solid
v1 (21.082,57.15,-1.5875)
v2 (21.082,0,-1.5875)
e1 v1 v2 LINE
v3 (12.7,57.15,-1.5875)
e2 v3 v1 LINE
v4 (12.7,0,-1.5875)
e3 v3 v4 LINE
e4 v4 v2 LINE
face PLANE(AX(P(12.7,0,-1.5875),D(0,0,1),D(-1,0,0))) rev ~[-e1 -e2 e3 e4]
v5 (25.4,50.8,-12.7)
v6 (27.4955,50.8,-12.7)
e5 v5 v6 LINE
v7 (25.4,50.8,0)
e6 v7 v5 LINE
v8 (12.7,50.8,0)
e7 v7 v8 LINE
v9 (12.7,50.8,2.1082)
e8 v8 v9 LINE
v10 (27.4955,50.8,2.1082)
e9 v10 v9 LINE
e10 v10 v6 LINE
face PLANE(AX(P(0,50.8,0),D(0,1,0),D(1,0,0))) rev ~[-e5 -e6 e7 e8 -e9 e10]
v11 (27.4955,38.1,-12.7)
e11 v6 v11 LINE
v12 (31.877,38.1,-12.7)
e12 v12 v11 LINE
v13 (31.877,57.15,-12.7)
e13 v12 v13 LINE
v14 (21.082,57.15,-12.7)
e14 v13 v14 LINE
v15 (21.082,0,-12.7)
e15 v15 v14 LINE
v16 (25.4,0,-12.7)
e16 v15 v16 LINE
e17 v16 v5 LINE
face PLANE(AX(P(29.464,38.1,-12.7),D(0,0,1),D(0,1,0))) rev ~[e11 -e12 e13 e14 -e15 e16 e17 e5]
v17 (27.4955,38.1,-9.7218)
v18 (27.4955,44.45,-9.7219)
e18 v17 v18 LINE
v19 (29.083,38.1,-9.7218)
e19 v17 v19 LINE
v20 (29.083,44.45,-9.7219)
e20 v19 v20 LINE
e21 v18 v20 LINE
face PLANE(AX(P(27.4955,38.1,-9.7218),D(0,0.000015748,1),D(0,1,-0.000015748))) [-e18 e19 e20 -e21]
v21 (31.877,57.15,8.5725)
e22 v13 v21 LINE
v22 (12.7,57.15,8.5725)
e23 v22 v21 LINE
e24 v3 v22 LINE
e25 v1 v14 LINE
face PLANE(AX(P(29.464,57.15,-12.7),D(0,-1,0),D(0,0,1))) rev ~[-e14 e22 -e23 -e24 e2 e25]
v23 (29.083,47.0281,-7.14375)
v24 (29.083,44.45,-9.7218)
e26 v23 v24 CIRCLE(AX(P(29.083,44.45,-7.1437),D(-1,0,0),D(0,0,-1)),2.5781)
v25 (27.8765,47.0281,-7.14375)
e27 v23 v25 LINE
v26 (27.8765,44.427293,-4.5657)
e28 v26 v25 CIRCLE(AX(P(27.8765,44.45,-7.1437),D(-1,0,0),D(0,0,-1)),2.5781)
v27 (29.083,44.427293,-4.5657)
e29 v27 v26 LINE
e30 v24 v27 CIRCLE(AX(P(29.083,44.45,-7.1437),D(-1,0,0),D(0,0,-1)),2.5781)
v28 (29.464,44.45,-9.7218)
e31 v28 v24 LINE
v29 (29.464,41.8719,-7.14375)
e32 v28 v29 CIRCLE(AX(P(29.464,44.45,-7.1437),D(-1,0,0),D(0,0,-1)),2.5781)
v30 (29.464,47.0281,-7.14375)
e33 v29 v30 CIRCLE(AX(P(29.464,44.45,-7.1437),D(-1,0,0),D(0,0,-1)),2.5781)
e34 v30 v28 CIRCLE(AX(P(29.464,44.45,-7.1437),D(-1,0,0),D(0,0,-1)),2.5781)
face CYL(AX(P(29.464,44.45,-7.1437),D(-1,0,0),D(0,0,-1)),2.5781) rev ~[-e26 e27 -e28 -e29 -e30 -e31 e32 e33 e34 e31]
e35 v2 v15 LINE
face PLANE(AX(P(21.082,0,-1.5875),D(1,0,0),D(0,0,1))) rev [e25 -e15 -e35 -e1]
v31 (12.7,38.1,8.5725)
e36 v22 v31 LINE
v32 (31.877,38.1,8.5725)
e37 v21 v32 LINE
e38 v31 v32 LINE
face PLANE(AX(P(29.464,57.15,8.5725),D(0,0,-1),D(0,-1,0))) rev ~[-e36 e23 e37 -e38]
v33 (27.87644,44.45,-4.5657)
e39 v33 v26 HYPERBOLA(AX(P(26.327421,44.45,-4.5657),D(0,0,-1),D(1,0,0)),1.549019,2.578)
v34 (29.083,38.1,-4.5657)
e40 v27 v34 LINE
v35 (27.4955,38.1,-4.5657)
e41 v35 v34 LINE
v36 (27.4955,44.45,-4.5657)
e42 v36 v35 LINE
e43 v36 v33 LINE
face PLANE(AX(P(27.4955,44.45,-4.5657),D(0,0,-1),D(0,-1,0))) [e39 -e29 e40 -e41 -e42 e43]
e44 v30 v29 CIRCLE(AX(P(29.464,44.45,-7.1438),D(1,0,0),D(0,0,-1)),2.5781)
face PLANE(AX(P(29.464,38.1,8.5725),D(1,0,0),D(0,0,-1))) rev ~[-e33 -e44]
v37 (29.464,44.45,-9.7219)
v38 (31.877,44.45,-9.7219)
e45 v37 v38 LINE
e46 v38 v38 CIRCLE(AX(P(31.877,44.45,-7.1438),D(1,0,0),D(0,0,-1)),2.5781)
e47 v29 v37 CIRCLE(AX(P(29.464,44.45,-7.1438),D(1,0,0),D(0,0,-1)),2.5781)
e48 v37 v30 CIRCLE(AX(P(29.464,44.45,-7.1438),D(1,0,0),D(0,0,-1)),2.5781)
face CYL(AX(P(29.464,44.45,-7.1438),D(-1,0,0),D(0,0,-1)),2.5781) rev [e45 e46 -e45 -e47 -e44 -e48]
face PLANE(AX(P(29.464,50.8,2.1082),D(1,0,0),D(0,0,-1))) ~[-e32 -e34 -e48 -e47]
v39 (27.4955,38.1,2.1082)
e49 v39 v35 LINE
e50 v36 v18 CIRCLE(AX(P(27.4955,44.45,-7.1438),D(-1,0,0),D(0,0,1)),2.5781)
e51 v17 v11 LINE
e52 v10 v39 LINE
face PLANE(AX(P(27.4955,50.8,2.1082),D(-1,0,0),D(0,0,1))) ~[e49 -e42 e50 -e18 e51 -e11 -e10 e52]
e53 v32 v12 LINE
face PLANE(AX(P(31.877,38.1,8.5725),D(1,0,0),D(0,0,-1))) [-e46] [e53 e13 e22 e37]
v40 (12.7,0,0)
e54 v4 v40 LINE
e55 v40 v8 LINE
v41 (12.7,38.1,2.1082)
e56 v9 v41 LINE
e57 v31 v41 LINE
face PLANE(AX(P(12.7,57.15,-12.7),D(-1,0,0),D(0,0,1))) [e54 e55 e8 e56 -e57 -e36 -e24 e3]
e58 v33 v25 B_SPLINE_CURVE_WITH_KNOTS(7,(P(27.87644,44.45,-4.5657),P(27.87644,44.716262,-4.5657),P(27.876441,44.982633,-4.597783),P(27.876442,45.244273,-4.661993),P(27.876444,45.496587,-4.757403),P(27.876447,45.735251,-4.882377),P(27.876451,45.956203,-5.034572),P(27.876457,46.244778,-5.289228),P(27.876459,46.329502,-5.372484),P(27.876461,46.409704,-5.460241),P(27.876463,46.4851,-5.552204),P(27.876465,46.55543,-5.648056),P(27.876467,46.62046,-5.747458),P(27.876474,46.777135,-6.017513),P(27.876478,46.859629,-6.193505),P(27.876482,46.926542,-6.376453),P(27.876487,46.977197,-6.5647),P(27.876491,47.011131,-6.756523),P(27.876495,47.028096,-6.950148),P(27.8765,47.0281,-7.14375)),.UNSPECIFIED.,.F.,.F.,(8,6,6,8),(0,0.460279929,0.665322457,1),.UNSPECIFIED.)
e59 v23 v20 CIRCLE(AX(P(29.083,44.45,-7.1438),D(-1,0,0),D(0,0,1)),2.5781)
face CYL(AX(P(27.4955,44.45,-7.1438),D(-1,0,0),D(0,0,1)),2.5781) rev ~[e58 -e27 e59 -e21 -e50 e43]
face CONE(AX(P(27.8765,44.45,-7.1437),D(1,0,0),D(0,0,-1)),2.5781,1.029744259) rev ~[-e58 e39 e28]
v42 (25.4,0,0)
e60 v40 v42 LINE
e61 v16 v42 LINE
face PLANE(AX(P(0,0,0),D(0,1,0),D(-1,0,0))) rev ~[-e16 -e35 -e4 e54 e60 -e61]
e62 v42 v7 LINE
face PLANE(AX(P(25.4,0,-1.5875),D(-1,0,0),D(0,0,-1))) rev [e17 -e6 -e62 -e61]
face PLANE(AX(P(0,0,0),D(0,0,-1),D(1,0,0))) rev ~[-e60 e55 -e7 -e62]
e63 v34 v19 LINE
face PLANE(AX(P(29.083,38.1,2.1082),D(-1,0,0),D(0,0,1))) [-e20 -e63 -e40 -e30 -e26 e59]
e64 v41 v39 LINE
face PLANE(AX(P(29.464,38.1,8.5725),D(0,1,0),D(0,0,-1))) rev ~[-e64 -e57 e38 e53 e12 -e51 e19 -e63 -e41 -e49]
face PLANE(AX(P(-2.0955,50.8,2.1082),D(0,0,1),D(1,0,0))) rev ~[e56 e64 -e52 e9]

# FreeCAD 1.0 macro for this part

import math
import FreeCAD as App
import Part
import Sketcher
from FreeCAD import Vector
Q = App.Units.Quantity


def add_polygon(sketch, points):
    """Adds a closed chain of lines whose ends are joined by coincident constraints."""
    first, n = sketch.GeometryCount, len(points)
    for a, b in zip(points, points[1:] + points[:1]):
        sketch.addGeometry(Part.LineSegment(App.Vector(*a, 0), App.Vector(*b, 0)), False)
    for i in range(n):
        sketch.addConstraint(Sketcher.Constraint("Coincident", first + i, 2, first + (i + 1) % n, 1))

doc = App.newDocument("Part")
body = doc.addObject("PartDesign::Body", "Body")

sketch1 = body.newObject("Sketcher::SketchObject", "Sketch")
sketch1.AttachmentSupport = (doc.getObject("XZ_Plane"), [""])
sketch1.MapMode = "FlatFace"
add_polygon(sketch1, [(0, 0), (12.7, 0), (12.7, -1.6), (4.3, -1.6), (4.3, -12.7), (0, -12.7)])
sketch1.addConstraint(Sketcher.Constraint("Horizontal", 0))
sketch1.addConstraint(Sketcher.Constraint("Vertical", 1))
sketch1.addConstraint(Sketcher.Constraint("Horizontal", 2))
sketch1.addConstraint(Sketcher.Constraint("Vertical", 3))
sketch1.addConstraint(Sketcher.Constraint("Horizontal", 4))
sketch1.addConstraint(Sketcher.Constraint("Vertical", 5))
sketch1.addConstraint(Sketcher.Constraint("Coincident", 5, 2, -1, 1))
sketch1.addConstraint(Sketcher.Constraint("Equal", 0, 5))
sketch1.addConstraint(Sketcher.Constraint("DistanceX", 0, 1, 0, 2, Q("0.5 in")))
sketch1.addConstraint(Sketcher.Constraint("DistanceX", 4, 2, 4, 1, Q("0.17 in")))
sketch1.addConstraint(Sketcher.Constraint("DistanceY", 1, 2, 1, 1, Q("0.0625 in")))
pad1 = body.newObject("PartDesign::Pad", "Pad")
pad1.Profile = sketch1
pad1.Length = Q("2 in")
pad1.Reversed = True

sketch2 = body.newObject("Sketcher::SketchObject", "Sketch001")
sketch2.AttachmentSupport = (doc.getObject("XZ_Plane"), [""])
sketch2.MapMode = "FlatFace"
sketch2.AttachmentOffset = App.Placement(Vector(0, 0, -2 * 25.4), App.Rotation())
add_polygon(sketch2, [(13, 9), (13, -2), (4, -2), (4, -13), (-4, -13), (-4, 9)])
sketch2.addConstraint(Sketcher.Constraint("Vertical", 0))
sketch2.addConstraint(Sketcher.Constraint("Horizontal", 1))
sketch2.addConstraint(Sketcher.Constraint("Vertical", 2))
sketch2.addConstraint(Sketcher.Constraint("Horizontal", 3))
sketch2.addConstraint(Sketcher.Constraint("Vertical", 4))
sketch2.addConstraint(Sketcher.Constraint("Horizontal", 5))
sketch2.addConstraint(Sketcher.Constraint("Equal", 1, 3))
sketch2.addConstraint(Sketcher.Constraint("DistanceY", 0, 2, 0, 1, Q("0.4 in")))
sketch2.addConstraint(Sketcher.Constraint("DistanceX", 5, 1, 5, 2, Q("0.66 in")))
sketch2.addConstraint(Sketcher.Constraint("DistanceX", -1, 1, 0, 2, Q("0.5 in")))
sketch2.addConstraint(Sketcher.Constraint("DistanceY", 2, 2, -1, 1, Q("0.5 in")))
sketch2.addConstraint(Sketcher.Constraint("DistanceY", 2, 2, 2, 1, Q("0.4375 in")))
pad2 = body.newObject("PartDesign::Pad", "Pad001")
pad2.Profile = sketch2
pad2.Length = Q("0.25 in")
pad2.Reversed = True

sketch3 = body.newObject("Sketcher::SketchObject", "Sketch002")
sketch3.AttachmentSupport = (doc.getObject("XZ_Plane"), [""])
sketch3.MapMode = "FlatFace"
sketch3.AttachmentOffset = App.Placement(Vector(0, 0, -2 * 25.4), App.Rotation())
add_polygon(sketch3, [(12.7, 2.1), (12.7, 8.6), (-4.1, 8.6), (-4.1, -12.7), (-2.1, -12.7), (-2.1, 2.1)])
sketch3.addConstraint(Sketcher.Constraint("Vertical", 0))
sketch3.addConstraint(Sketcher.Constraint("Horizontal", 1))
sketch3.addConstraint(Sketcher.Constraint("Vertical", 2))
sketch3.addConstraint(Sketcher.Constraint("Horizontal", 3))
sketch3.addConstraint(Sketcher.Constraint("Vertical", 4))
sketch3.addConstraint(Sketcher.Constraint("Horizontal", 5))
sketch3.addConstraint(Sketcher.Constraint("DistanceY", -1, 1, 4, 2, Q("0.083 in")))
sketch3.addConstraint(Sketcher.Constraint("DistanceX", 1, 2, 1, 1, Q("0.66 in")))
sketch3.addConstraint(Sketcher.Constraint("DistanceX", 3, 2, -1, 1, Q("0.0825 in")))
sketch3.addConstraint(Sketcher.Constraint("DistanceX", -1, 1, 0, 2, Q("0.5 in")))
sketch3.addConstraint(Sketcher.Constraint("DistanceY", 2, 2, -1, 1, Q("0.5 in")))
sketch3.addConstraint(Sketcher.Constraint("DistanceY", 0, 1, 0, 2, Q("0.2545 in")))
pad3 = body.newObject("PartDesign::Pad", "Pad002")
pad3.Profile = sketch3
pad3.Length = Q("0.5 in")
doc.recompute()

datumplane = body.newObject("PartDesign::Plane", "DatumPlane")
datumplane.AttachmentSupport = (doc.getObject("YZ_Plane"), [""])
datumplane.MapMode = "FlatFace"
datumplane.AttachmentOffset = App.Placement(Vector(0, 0, 0.5 * 25.4), App.Rotation())
mirrored = body.newObject("PartDesign::Mirrored", "Mirrored")
mirrored.Originals = [pad3, pad2, pad1]
mirrored.MirrorPlane = (datumplane, [""])
body.Tip = mirrored

sketch4 = body.newObject("Sketcher::SketchObject", "Sketch003")
sketch4.AttachmentSupport = (doc.getObject("XZ_Plane"), [""])
sketch4.MapMode = "FlatFace"
sketch4.AttachmentOffset = App.Placement(Vector(0, 0, -2.25 * 25.4), App.Rotation())
add_polygon(sketch4, [(-4, 9), (13, 9), (13, -13), (-4, -13)])
sketch4.addConstraint(Sketcher.Constraint("Horizontal", 0))
sketch4.addConstraint(Sketcher.Constraint("Vertical", 1))
sketch4.addConstraint(Sketcher.Constraint("Horizontal", 2))
sketch4.addConstraint(Sketcher.Constraint("Vertical", 3))
sketch4.addConstraint(Sketcher.Constraint("DistanceX", 0, 1, 0, 2, Q("0.66 in")))
sketch4.addConstraint(Sketcher.Constraint("DistanceX", -1, 1, 0, 2, Q("0.5 in")))
sketch4.addConstraint(Sketcher.Constraint("DistanceY", 1, 2, -1, 1, Q("0.5 in")))
sketch4.addConstraint(Sketcher.Constraint("DistanceY", 1, 2, 1, 1, Q("0.8375 in")))
pocket1 = body.newObject("PartDesign::Pocket", "Pocket")
pocket1.Profile = sketch4
pocket1.Length = Q("10 in")
pocket1.Reversed = True

sketch5 = body.newObject("Sketcher::SketchObject", "Sketch004")
sketch5.AttachmentSupport = (doc.getObject("YZ_Plane"), [""])
sketch5.MapMode = "FlatFace"
sketch5.AttachmentOffset = App.Placement(Vector(0, 0, 1.16 * 25.4), App.Rotation())
sketch5.addGeometry(Part.Circle(Vector(44.5, -7.1, 0), Vector(0, 0, 1), 2.6), False)
sketch5.addConstraint(Sketcher.Constraint("Diameter", 0, Q("0.203 in")))
sketch5.addConstraint(Sketcher.Constraint("DistanceX", -1, 1, 0, 3, Q("1.75 in")))
sketch5.addConstraint(Sketcher.Constraint("DistanceY", 0, 3, -1, 1, Q("0.281248 in")))
doc.recompute()
hole = body.newObject("PartDesign::Hole", "Hole")
hole.Profile = sketch5
hole.ThreadType = "None"
hole.Diameter = Q("0.203 in")
hole.DepthType = "Dimension"
hole.Depth = Q("0.0625 in")
hole.DrillPoint = "Angled"
hole.DrillPointAngle = 118

sketch6 = body.newObject("Sketcher::SketchObject", "Sketch005")
sketch6.AttachmentSupport = (doc.getObject("YZ_Plane"), [""])
sketch6.MapMode = "FlatFace"
sketch6.AttachmentOffset = App.Placement(Vector(0, 0, 1.16 * 25.4), App.Rotation())
add_polygon(sketch6, [(57.1, -12.7), (57.1, 8.6), (38.1, 8.6), (38.1, -12.7)])
sketch6.addGeometry(Part.Circle(Vector(44.5, -7.1, 0), Vector(0, 0, 1), 2.6), False)
sketch6.addConstraint(Sketcher.Constraint("Vertical", 0))
sketch6.addConstraint(Sketcher.Constraint("Horizontal", 1))
sketch6.addConstraint(Sketcher.Constraint("Vertical", 2))
sketch6.addConstraint(Sketcher.Constraint("Horizontal", 3))
sketch6.addConstraint(Sketcher.Constraint("Diameter", 4, Q("0.203 in")))
sketch6.addConstraint(Sketcher.Constraint("DistanceX", 1, 2, 1, 1, Q("0.75 in")))
sketch6.addConstraint(Sketcher.Constraint("DistanceX", -1, 1, 1, 2, Q("1.5 in")))
sketch6.addConstraint(Sketcher.Constraint("DistanceY", 2, 2, -1, 1, Q("0.5 in")))
sketch6.addConstraint(Sketcher.Constraint("DistanceX", 4, 3, 0, 2, Q("0.5 in")))
sketch6.addConstraint(Sketcher.Constraint("DistanceY", 0, 1, 0, 2, Q("0.8375 in")))
sketch6.addConstraint(Sketcher.Constraint("DistanceY", 4, 3, -1, 1, Q("0.281252 in")))
pad4 = body.newObject("PartDesign::Pad", "Pad003")
pad4.Profile = sketch6
pad4.Length = Q("0.095 in")

sketch7 = body.newObject("Sketcher::SketchObject", "Sketch006")
sketch7.AttachmentSupport = (doc.getObject("YZ_Plane"), [""])
sketch7.MapMode = "FlatFace"
sketch7.AttachmentOffset = App.Placement(Vector(0, 0, 1.0825 * 25.4), App.Rotation())
sketch7.addGeometry(Part.ArcOfCircle(Part.Circle(Vector(44.5, -7.1, 0), Vector(0, 0, 1), 2.6), math.radians(-90), math.radians(90)), False)
sketch7.addGeometry(Part.LineSegment(Vector(44.5, -9.7, 0), Vector(38.1, -9.7, 0)), False)
sketch7.addGeometry(Part.LineSegment(Vector(38.1, -9.7, 0), Vector(38.1, -4.6, 0)), False)
sketch7.addGeometry(Part.LineSegment(Vector(38.1, -4.6, 0), Vector(44.5, -4.6, 0)), False)
sketch7.addConstraint(Sketcher.Constraint("Tangent", 0, 1, 1, 1))
sketch7.addConstraint(Sketcher.Constraint("Coincident", 1, 2, 2, 1))
sketch7.addConstraint(Sketcher.Constraint("Coincident", 2, 2, 3, 1))
sketch7.addConstraint(Sketcher.Constraint("Tangent", 3, 2, 0, 2))
sketch7.addConstraint(Sketcher.Constraint("Horizontal", 1))
sketch7.addConstraint(Sketcher.Constraint("Vertical", 2))
sketch7.addConstraint(Sketcher.Constraint("Horizontal", 3))
sketch7.addConstraint(Sketcher.Constraint("Radius", 0, Q("0.1015 in")))
sketch7.addConstraint(Sketcher.Constraint("DistanceX", 1, 2, 1, 1, Q("0.25 in")))
sketch7.addConstraint(Sketcher.Constraint("DistanceX", -1, 1, 1, 2, Q("1.5 in")))
sketch7.addConstraint(Sketcher.Constraint("DistanceY", 0, 3, -1, 1, Q("0.281252 in")))
pocket2 = body.newObject("PartDesign::Pocket", "Pocket001")
pocket2.Profile = sketch7
pocket2.Length = Q("0.0625 in")
pocket2.Reversed = True

doc.recompute()
